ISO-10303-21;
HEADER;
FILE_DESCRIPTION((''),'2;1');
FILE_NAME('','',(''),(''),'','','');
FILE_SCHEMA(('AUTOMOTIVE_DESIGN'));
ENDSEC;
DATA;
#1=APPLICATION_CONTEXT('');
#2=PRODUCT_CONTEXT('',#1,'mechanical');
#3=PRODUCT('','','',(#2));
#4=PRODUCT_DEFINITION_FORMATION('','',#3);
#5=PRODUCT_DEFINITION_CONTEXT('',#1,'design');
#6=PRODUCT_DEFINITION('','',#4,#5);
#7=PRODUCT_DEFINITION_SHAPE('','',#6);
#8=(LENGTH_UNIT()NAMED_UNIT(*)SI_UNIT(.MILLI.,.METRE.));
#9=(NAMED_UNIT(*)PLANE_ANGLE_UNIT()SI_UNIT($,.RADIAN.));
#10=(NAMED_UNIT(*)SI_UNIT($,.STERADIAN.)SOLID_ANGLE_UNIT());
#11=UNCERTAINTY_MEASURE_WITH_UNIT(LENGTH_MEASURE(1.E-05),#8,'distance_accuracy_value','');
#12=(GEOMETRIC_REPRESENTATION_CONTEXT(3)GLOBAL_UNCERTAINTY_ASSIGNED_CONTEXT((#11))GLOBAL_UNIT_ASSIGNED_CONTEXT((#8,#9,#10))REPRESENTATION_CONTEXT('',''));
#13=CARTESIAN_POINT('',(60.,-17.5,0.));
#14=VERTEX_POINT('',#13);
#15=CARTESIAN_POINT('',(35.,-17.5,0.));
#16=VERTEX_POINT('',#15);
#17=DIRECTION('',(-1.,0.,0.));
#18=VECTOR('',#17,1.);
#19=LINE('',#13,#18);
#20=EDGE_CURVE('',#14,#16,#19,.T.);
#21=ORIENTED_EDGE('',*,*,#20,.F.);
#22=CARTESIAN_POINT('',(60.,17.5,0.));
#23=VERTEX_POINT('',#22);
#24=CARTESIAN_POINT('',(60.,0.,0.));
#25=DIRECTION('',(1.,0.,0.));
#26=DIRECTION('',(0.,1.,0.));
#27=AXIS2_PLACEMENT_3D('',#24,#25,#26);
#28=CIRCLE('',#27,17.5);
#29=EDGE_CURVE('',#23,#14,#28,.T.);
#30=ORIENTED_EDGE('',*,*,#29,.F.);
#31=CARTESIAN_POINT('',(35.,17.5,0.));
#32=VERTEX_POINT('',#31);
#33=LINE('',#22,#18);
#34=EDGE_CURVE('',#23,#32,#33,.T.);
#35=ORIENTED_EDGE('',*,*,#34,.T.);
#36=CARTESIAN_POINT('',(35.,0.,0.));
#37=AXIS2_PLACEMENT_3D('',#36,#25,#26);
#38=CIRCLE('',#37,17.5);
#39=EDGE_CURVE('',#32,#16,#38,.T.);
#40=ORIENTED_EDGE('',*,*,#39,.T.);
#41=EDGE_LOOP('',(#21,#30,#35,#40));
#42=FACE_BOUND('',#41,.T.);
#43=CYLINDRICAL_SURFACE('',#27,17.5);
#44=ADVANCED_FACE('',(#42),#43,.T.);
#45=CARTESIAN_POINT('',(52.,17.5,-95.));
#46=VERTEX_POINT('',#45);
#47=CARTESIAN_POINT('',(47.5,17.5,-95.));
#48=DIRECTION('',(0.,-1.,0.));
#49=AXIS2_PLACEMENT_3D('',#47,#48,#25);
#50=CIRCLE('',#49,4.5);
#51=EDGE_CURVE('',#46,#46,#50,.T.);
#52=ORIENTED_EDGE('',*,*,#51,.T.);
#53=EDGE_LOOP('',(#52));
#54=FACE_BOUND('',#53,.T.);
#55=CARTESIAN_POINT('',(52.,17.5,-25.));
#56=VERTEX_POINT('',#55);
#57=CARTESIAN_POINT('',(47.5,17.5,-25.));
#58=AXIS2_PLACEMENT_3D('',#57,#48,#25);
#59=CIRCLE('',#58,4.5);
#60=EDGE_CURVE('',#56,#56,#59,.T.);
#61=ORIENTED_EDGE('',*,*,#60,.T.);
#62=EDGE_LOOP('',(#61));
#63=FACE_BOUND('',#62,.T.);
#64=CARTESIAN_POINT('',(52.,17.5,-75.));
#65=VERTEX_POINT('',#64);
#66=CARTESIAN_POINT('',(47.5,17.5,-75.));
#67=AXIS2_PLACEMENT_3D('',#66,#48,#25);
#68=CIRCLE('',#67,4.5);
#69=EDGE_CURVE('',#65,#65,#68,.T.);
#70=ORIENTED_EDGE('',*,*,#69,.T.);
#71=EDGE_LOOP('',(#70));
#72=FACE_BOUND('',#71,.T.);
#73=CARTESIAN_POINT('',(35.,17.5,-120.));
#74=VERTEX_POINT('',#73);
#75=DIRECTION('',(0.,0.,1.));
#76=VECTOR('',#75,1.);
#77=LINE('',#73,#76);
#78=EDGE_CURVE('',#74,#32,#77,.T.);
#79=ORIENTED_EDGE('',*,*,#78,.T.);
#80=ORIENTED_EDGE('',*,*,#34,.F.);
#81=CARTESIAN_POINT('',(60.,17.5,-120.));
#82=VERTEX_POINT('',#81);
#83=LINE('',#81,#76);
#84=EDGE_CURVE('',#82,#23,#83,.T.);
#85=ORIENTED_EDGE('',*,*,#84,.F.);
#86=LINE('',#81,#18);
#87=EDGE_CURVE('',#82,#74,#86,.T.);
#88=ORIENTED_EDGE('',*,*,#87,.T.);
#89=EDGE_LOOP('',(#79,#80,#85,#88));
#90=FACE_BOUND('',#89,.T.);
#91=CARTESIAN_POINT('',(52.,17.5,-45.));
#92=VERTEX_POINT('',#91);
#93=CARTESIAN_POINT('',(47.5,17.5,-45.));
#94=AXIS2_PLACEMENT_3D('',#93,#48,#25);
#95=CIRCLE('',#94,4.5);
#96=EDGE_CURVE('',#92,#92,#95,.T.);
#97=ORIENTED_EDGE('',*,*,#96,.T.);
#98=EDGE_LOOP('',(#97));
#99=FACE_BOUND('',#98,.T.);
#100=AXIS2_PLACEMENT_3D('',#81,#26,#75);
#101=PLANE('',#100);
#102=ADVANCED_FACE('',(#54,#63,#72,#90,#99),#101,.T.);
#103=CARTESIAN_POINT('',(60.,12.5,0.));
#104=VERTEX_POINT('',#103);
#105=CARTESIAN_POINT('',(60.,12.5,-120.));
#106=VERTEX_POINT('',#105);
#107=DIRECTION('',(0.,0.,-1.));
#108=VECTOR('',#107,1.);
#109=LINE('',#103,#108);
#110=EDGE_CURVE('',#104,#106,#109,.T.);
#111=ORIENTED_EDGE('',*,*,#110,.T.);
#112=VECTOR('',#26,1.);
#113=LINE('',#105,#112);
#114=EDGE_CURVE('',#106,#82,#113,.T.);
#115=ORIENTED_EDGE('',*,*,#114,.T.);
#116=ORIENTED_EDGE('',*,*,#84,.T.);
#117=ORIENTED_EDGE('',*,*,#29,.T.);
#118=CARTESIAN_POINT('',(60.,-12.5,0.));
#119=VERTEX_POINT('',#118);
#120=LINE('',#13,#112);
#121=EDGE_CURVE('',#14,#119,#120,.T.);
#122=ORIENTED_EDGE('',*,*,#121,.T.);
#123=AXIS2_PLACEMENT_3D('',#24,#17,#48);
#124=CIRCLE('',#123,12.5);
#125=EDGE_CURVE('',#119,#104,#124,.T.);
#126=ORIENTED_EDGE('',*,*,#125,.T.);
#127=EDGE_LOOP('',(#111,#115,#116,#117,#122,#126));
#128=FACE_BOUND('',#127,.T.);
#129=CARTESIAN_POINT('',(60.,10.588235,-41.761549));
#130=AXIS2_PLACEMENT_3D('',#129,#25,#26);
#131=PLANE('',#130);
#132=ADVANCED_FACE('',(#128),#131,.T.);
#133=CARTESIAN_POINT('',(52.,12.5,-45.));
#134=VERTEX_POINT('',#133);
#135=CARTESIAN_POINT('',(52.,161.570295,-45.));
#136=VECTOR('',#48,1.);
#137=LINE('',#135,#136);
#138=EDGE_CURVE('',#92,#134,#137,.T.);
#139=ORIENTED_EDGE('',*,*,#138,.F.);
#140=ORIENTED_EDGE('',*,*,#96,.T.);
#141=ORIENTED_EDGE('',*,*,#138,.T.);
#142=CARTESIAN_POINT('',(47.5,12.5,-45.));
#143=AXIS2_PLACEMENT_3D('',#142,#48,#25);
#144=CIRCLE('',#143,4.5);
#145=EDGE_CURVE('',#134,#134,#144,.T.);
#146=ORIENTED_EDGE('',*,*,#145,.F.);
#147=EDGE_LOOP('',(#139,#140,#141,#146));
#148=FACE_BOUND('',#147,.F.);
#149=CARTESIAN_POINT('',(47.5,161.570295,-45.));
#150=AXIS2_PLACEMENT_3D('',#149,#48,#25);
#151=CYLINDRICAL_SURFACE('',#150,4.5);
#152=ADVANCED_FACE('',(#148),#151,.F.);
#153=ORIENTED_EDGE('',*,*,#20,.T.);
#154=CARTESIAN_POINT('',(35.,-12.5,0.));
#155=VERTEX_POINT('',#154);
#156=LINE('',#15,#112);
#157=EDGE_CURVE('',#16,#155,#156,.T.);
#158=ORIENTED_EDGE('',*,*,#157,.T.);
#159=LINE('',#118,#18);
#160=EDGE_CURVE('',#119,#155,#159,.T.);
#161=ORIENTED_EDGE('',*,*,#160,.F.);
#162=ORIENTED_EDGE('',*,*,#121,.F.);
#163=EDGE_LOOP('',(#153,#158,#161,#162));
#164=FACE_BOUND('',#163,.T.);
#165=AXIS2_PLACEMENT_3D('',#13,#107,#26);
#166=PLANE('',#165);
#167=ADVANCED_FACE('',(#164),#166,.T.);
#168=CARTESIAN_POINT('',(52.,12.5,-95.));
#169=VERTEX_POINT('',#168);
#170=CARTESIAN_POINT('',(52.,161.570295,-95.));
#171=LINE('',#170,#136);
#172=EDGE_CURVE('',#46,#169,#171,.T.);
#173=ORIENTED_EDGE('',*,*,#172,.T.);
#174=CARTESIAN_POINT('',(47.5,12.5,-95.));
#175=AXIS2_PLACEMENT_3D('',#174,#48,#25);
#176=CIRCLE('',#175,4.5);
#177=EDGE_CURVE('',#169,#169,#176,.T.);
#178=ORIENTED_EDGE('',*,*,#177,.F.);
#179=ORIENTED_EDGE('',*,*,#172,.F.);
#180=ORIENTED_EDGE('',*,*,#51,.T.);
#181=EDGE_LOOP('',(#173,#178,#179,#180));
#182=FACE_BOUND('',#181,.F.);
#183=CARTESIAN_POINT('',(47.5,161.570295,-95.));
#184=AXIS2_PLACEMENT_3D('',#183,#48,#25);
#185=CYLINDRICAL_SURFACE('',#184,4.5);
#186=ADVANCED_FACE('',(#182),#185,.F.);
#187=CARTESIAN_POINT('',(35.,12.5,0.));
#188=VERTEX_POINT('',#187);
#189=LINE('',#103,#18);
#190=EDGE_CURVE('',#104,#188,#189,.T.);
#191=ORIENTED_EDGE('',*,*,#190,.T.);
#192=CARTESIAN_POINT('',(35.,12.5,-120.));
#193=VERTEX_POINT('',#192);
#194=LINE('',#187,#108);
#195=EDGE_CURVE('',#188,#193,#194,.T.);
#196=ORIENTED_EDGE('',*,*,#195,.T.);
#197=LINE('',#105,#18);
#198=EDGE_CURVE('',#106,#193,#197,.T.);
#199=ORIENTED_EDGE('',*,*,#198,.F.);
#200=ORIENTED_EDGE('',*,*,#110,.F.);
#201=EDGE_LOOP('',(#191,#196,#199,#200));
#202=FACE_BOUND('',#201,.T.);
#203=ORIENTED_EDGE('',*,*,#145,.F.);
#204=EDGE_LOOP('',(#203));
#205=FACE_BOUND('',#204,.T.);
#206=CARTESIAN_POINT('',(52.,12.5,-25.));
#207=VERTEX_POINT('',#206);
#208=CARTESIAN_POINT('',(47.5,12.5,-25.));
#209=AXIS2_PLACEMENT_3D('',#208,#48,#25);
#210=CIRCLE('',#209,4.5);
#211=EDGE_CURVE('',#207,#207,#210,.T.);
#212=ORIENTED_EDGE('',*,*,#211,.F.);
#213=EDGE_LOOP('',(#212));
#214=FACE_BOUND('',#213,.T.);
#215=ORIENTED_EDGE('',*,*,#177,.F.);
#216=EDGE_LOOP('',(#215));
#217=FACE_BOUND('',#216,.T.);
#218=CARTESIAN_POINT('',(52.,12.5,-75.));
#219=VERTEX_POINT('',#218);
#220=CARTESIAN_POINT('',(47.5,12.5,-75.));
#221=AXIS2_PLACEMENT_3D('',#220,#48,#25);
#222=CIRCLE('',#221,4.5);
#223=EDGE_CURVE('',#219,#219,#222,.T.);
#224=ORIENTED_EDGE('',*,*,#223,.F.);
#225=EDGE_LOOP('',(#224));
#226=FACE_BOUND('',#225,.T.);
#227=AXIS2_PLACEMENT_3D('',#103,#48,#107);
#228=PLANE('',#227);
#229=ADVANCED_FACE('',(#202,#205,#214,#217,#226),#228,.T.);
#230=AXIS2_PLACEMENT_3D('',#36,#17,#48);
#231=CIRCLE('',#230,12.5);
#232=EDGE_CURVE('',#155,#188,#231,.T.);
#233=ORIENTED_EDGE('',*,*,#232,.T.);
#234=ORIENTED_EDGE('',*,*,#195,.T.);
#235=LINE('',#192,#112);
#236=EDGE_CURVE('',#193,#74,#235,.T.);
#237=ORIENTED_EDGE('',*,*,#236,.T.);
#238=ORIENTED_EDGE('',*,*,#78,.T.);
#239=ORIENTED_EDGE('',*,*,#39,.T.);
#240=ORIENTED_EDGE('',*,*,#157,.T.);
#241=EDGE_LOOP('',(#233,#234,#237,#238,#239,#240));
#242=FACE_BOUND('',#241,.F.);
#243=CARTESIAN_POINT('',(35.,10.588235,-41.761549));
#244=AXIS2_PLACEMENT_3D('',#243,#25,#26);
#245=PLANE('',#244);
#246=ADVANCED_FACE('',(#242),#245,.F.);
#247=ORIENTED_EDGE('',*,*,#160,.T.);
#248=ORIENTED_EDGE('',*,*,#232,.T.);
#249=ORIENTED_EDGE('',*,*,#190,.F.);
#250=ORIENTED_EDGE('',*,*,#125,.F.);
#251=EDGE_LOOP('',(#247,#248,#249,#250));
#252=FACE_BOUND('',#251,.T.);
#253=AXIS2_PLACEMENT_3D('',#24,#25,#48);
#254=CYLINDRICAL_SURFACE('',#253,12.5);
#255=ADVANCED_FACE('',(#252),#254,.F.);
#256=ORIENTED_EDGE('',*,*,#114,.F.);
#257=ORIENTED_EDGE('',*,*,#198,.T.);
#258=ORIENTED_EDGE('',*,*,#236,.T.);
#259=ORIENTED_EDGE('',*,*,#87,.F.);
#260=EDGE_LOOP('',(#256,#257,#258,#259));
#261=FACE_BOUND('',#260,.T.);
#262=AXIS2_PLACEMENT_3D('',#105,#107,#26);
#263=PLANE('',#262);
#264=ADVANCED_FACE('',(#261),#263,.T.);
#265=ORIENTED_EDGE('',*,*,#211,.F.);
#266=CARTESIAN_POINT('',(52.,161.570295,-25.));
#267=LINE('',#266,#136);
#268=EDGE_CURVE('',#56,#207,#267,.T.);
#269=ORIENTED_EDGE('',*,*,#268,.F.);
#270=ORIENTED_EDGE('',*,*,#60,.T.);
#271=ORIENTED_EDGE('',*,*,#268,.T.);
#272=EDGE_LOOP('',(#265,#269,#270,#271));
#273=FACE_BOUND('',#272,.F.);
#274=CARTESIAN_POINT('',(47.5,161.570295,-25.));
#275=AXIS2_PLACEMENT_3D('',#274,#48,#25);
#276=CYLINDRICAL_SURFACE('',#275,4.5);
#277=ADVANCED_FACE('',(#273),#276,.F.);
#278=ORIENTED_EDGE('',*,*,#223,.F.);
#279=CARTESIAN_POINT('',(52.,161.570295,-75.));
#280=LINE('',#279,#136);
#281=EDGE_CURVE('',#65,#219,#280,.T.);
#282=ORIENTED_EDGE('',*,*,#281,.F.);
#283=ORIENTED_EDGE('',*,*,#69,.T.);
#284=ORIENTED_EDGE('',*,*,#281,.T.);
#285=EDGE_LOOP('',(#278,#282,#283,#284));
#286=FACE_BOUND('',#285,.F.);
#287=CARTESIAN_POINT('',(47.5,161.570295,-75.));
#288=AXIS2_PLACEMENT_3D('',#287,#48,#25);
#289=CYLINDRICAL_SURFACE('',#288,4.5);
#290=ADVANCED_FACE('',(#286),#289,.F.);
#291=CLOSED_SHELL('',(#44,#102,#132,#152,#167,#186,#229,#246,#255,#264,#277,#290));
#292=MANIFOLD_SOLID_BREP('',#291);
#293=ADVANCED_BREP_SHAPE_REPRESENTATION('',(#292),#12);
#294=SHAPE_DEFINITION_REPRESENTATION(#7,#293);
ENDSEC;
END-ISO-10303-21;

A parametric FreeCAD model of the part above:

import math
import FreeCAD as App
import Part
import Sketcher

doc = App.newDocument("Part")
params = doc.addObject("Spreadsheet::Sheet", "Params")
for row, (alias, value) in enumerate([
    ("sketch1_radius", "12.5 mm"),
    ("sketch1_radius2", "17.5 mm"),
    ("sketch1_height", "120 mm"),
    ("pad1_length", "25 mm"),
    ("sketch2_diameter", "9 mm"),
    ("hole_diameter", "9 mm"),
    ("sketch3_diameter", "9 mm"),
    ("hole2_diameter", "9 mm"),
], start=1):
    params.set(f"A{row}", alias)
    params.set(f"B{row}", "=" + value)
    params.setAlias(f"B{row}", alias)

body = doc.addObject("PartDesign::Body", "Body")

sketch1 = body.newObject("Sketcher::SketchObject", "Sketch")
sketch1.AttachmentSupport = (doc.getObject("YZ_Plane"), [""])
sketch1.MapMode = "FlatFace"
sketch1.AttachmentOffset = App.Placement(App.Vector(0, 0, 60), App.Rotation())
sketch1.addGeometry(Part.ArcOfCircle(Part.Circle(App.Vector(0, 0, 0), App.Vector(0, 0, 1), 12.5), math.radians(0), math.radians(180)), False)
sketch1.addGeometry(Part.LineSegment(App.Vector(12.5, 0, 0), App.Vector(12.5, -120, 0)), False)
sketch1.addGeometry(Part.LineSegment(App.Vector(12.5, -120, 0), App.Vector(17.5, -120, 0)), False)
sketch1.addGeometry(Part.LineSegment(App.Vector(17.5, -120, 0), App.Vector(17.5, 0, 0)), False)
sketch1.addGeometry(Part.ArcOfCircle(Part.Circle(App.Vector(0, 0, 0), App.Vector(0, 0, 1), 17.5), math.radians(0), math.radians(180)), False)
sketch1.addGeometry(Part.LineSegment(App.Vector(-17.5, 0, 0), App.Vector(-12.5, 0, 0)), False)
sketch1.addConstraint(Sketcher.Constraint("Tangent", 0, 1, 1, 1))
sketch1.addConstraint(Sketcher.Constraint("Coincident", 1, 2, 2, 1))
sketch1.addConstraint(Sketcher.Constraint("Coincident", 2, 2, 3, 1))
sketch1.addConstraint(Sketcher.Constraint("Tangent", 3, 2, 4, 1))
sketch1.addConstraint(Sketcher.Constraint("Coincident", 4, 2, 5, 1))
sketch1.addConstraint(Sketcher.Constraint("Coincident", 5, 2, 0, 2))
sketch1.addConstraint(Sketcher.Constraint("Vertical", 1))
sketch1.addConstraint(Sketcher.Constraint("Horizontal", 2))
sketch1.addConstraint(Sketcher.Constraint("Vertical", 3))
sketch1.addConstraint(Sketcher.Constraint("Horizontal", 5))
sketch1.addConstraint(Sketcher.Constraint("Coincident", 0, 3, -1, 1))
sketch1.addConstraint(Sketcher.Constraint("Coincident", 4, 3, -1, 1))
sketch1.addConstraint(Sketcher.Constraint("PointOnObject", 4, 2, -1))
sketch1.addConstraint(Sketcher.Constraint("Radius", 0, 12.5))
sketch1.addConstraint(Sketcher.Constraint("Radius", 4, 17.5))
sketch1.addConstraint(Sketcher.Constraint("DistanceY", 1, 2, 1, 1, 120.0))
sketch1.setExpression("Constraints[13]", "Params.sketch1_radius")
sketch1.setExpression("Constraints[14]", "Params.sketch1_radius2")
sketch1.setExpression("Constraints[15]", "Params.sketch1_height")
pad1 = body.newObject("PartDesign::Pad", "Pad")
pad1.Profile = sketch1
pad1.setExpression("Length", "Params.pad1_length")
pad1.Reversed = True

sketch2 = body.newObject("Sketcher::SketchObject", "Sketch001")
sketch2.AttachmentSupport = (doc.getObject("XZ_Plane"), [""])
sketch2.MapMode = "FlatFace"
sketch2.AttachmentOffset = App.Placement(App.Vector(0, 0, -17.5), App.Rotation())
sketch2.addGeometry(Part.Circle(App.Vector(47.5, -25, 0), App.Vector(0, 0, 1), 4.5), False)
sketch2.addGeometry(Part.Circle(App.Vector(47.5, -45, 0), App.Vector(0, 0, 1), 4.5), False)
sketch2.addConstraint(Sketcher.Constraint("Equal", 0, 1))
sketch2.addConstraint(Sketcher.Constraint("Vertical", 0, 3, 1, 3))
sketch2.addConstraint(Sketcher.Constraint("Diameter", 0, 9.0))
sketch2.addConstraint(Sketcher.Constraint("DistanceY", 0, 3, -1, 1, 25.0))
sketch2.addConstraint(Sketcher.Constraint("DistanceY", 1, 3, -1, 1, 45.0))
sketch2.addConstraint(Sketcher.Constraint("DistanceX", -1, 1, 0, 3, 47.5))
sketch2.setExpression("Constraints[2]", "Params.sketch2_diameter")
doc.recompute()
hole = body.newObject("PartDesign::Hole", "Hole")
hole.Profile = sketch2
hole.ThreadType = "None"
hole.setExpression("Diameter", "Params.hole_diameter")
hole.DepthType = "ThroughAll"
hole.Reversed = True

sketch3 = body.newObject("Sketcher::SketchObject", "Sketch002")
sketch3.AttachmentSupport = (doc.getObject("XZ_Plane"), [""])
sketch3.MapMode = "FlatFace"
sketch3.AttachmentOffset = App.Placement(App.Vector(0, 0, -17.5), App.Rotation())
sketch3.addGeometry(Part.Circle(App.Vector(47.5, -75, 0), App.Vector(0, 0, 1), 4.5), False)
sketch3.addGeometry(Part.Circle(App.Vector(47.5, -95, 0), App.Vector(0, 0, 1), 4.5), False)
sketch3.addConstraint(Sketcher.Constraint("Equal", 0, 1))
sketch3.addConstraint(Sketcher.Constraint("Vertical", 0, 3, 1, 3))
sketch3.addConstraint(Sketcher.Constraint("Diameter", 0, 9.0))
sketch3.addConstraint(Sketcher.Constraint("DistanceY", 0, 3, -1, 1, 75.0))
sketch3.addConstraint(Sketcher.Constraint("DistanceY", 1, 3, -1, 1, 95.0))
sketch3.addConstraint(Sketcher.Constraint("DistanceX", -1, 1, 0, 3, 47.5))
sketch3.setExpression("Constraints[2]", "Params.sketch3_diameter")
doc.recompute()
hole2 = body.newObject("PartDesign::Hole", "Hole001")
hole2.Profile = sketch3
hole2.ThreadType = "None"
hole2.setExpression("Diameter", "Params.hole2_diameter")
hole2.DepthType = "ThroughAll"
hole2.Reversed = True

doc.recompute()
